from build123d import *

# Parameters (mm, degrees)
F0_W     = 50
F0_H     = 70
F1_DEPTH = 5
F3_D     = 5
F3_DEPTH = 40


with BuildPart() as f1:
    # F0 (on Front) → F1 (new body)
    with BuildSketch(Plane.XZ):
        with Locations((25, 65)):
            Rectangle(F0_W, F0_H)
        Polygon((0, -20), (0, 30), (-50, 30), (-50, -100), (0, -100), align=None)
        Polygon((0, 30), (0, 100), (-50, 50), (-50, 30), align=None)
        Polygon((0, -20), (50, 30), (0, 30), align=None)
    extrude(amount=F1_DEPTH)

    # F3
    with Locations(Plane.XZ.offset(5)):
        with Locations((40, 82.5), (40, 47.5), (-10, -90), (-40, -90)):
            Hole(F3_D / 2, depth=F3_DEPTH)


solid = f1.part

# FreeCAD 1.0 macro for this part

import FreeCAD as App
import Part
import Sketcher
from FreeCAD import Vector
Q = App.Units.Quantity

doc = App.newDocument("Part")
body = doc.addObject("PartDesign::Body", "Body")

sketch1 = body.newObject("Sketcher::SketchObject", "Sketch")
sketch1.AttachmentSupport = (doc.getObject("XZ_Plane"), [""])
sketch1.MapMode = "FlatFace"
sketch1.addGeometry([
    Part.LineSegment(Vector(50, 30, 0), Vector(50, 100, 0)),
    Part.LineSegment(Vector(50, 100, 0), Vector(0, 100, 0)),
    Part.LineSegment(Vector(0, 100, 0), Vector(-50, 50, 0)),
    Part.LineSegment(Vector(-50, 50, 0), Vector(-50, -100, 0)),
    Part.LineSegment(Vector(-50, -100, 0), Vector(0, -100, 0)),
    Part.LineSegment(Vector(0, -100, 0), Vector(0, -20, 0)),
    Part.LineSegment(Vector(0, -20, 0), Vector(50, 30, 0)),
], False)
sketch1.addConstraint([
    Sketcher.Constraint("Coincident", 0, 2, 1, 1),
    Sketcher.Constraint("Coincident", 1, 2, 2, 1),
    Sketcher.Constraint("Coincident", 2, 2, 3, 1),
    Sketcher.Constraint("Coincident", 3, 2, 4, 1),
    Sketcher.Constraint("Coincident", 4, 2, 5, 1),
    Sketcher.Constraint("Coincident", 5, 2, 6, 1),
    Sketcher.Constraint("Coincident", 6, 2, 0, 1),
    Sketcher.Constraint("Vertical", 0),
    Sketcher.Constraint("Horizontal", 1),
    Sketcher.Constraint("Vertical", 3),
    Sketcher.Constraint("Horizontal", 4),
    Sketcher.Constraint("Vertical", 5),
    Sketcher.Constraint("Symmetric", 0, 2, 3, 2, -1, 1),
    Sketcher.Constraint("PointOnObject", 1, 2, -2),
    Sketcher.Constraint("PointOnObject", 4, 2, -2),
    Sketcher.Constraint("Parallel", 2, 6),
    Sketcher.Constraint("DistanceX", 1, 2, 1, 1, Q("50 mm")),
    Sketcher.Constraint("DistanceY", 0, 1, 0, 2, Q("70 mm")),
    Sketcher.Constraint("DistanceY", 3, 2, 3, 1, Q("150 mm")),
    Sketcher.Constraint("Angle", 2, Q("-135 deg")),
])
pad1 = body.newObject("PartDesign::Pad", "Pad")
pad1.Profile = sketch1
pad1.Length = 5

sketch2 = body.newObject("Sketcher::SketchObject", "Sketch001")
sketch2.AttachmentSupport = (doc.getObject("XZ_Plane"), [""])
sketch2.MapMode = "FlatFace"
sketch2.AttachmentOffset = App.Placement(Vector(0, 0, 5), App.Rotation())
sketch2.addGeometry([
    Part.Circle(Vector(40, 82.5, 0), Vector(0, 0, 1), 2.5),
    Part.Circle(Vector(40, 47.5, 0), Vector(0, 0, 1), 2.5),
    Part.Circle(Vector(-10, -90, 0), Vector(0, 0, 1), 2.5),
    Part.Circle(Vector(-40, -90, 0), Vector(0, 0, 1), 2.5),
], False)
sketch2.addConstraint([
    Sketcher.Constraint("Equal", 0, 1),
    Sketcher.Constraint("Equal", 1, 2),
    Sketcher.Constraint("Equal", 2, 3),
    Sketcher.Constraint("Horizontal", 2, 3, 3, 3),
    Sketcher.Constraint("Vertical", 0, 3, 1, 3),
    Sketcher.Constraint("Diameter", 0, Q("5 mm")),
    Sketcher.Constraint("DistanceX", -1, 1, 0, 3, Q("40 mm")),
    Sketcher.Constraint("DistanceX", 2, 3, -1, 1, Q("10 mm")),
    Sketcher.Constraint("DistanceY", 2, 3, -1, 1, Q("90 mm")),
    Sketcher.Constraint("DistanceX", 3, 3, -1, 1, Q("40 mm")),
    Sketcher.Constraint("DistanceY", 1, 3, 0, 3, Q("35 mm")),
    Sketcher.Constraint("DistanceY", -1, 1, 0, 3, Q("82.5 mm")),
])
doc.recompute()
hole = body.newObject("PartDesign::Hole", "Hole")
hole.Profile = sketch2
hole.ThreadType = "None"
hole.Diameter = 5
hole.DepthType = "Dimension"
hole.Depth = 40
hole.DrillPoint = "Flat"

doc.recompute()
